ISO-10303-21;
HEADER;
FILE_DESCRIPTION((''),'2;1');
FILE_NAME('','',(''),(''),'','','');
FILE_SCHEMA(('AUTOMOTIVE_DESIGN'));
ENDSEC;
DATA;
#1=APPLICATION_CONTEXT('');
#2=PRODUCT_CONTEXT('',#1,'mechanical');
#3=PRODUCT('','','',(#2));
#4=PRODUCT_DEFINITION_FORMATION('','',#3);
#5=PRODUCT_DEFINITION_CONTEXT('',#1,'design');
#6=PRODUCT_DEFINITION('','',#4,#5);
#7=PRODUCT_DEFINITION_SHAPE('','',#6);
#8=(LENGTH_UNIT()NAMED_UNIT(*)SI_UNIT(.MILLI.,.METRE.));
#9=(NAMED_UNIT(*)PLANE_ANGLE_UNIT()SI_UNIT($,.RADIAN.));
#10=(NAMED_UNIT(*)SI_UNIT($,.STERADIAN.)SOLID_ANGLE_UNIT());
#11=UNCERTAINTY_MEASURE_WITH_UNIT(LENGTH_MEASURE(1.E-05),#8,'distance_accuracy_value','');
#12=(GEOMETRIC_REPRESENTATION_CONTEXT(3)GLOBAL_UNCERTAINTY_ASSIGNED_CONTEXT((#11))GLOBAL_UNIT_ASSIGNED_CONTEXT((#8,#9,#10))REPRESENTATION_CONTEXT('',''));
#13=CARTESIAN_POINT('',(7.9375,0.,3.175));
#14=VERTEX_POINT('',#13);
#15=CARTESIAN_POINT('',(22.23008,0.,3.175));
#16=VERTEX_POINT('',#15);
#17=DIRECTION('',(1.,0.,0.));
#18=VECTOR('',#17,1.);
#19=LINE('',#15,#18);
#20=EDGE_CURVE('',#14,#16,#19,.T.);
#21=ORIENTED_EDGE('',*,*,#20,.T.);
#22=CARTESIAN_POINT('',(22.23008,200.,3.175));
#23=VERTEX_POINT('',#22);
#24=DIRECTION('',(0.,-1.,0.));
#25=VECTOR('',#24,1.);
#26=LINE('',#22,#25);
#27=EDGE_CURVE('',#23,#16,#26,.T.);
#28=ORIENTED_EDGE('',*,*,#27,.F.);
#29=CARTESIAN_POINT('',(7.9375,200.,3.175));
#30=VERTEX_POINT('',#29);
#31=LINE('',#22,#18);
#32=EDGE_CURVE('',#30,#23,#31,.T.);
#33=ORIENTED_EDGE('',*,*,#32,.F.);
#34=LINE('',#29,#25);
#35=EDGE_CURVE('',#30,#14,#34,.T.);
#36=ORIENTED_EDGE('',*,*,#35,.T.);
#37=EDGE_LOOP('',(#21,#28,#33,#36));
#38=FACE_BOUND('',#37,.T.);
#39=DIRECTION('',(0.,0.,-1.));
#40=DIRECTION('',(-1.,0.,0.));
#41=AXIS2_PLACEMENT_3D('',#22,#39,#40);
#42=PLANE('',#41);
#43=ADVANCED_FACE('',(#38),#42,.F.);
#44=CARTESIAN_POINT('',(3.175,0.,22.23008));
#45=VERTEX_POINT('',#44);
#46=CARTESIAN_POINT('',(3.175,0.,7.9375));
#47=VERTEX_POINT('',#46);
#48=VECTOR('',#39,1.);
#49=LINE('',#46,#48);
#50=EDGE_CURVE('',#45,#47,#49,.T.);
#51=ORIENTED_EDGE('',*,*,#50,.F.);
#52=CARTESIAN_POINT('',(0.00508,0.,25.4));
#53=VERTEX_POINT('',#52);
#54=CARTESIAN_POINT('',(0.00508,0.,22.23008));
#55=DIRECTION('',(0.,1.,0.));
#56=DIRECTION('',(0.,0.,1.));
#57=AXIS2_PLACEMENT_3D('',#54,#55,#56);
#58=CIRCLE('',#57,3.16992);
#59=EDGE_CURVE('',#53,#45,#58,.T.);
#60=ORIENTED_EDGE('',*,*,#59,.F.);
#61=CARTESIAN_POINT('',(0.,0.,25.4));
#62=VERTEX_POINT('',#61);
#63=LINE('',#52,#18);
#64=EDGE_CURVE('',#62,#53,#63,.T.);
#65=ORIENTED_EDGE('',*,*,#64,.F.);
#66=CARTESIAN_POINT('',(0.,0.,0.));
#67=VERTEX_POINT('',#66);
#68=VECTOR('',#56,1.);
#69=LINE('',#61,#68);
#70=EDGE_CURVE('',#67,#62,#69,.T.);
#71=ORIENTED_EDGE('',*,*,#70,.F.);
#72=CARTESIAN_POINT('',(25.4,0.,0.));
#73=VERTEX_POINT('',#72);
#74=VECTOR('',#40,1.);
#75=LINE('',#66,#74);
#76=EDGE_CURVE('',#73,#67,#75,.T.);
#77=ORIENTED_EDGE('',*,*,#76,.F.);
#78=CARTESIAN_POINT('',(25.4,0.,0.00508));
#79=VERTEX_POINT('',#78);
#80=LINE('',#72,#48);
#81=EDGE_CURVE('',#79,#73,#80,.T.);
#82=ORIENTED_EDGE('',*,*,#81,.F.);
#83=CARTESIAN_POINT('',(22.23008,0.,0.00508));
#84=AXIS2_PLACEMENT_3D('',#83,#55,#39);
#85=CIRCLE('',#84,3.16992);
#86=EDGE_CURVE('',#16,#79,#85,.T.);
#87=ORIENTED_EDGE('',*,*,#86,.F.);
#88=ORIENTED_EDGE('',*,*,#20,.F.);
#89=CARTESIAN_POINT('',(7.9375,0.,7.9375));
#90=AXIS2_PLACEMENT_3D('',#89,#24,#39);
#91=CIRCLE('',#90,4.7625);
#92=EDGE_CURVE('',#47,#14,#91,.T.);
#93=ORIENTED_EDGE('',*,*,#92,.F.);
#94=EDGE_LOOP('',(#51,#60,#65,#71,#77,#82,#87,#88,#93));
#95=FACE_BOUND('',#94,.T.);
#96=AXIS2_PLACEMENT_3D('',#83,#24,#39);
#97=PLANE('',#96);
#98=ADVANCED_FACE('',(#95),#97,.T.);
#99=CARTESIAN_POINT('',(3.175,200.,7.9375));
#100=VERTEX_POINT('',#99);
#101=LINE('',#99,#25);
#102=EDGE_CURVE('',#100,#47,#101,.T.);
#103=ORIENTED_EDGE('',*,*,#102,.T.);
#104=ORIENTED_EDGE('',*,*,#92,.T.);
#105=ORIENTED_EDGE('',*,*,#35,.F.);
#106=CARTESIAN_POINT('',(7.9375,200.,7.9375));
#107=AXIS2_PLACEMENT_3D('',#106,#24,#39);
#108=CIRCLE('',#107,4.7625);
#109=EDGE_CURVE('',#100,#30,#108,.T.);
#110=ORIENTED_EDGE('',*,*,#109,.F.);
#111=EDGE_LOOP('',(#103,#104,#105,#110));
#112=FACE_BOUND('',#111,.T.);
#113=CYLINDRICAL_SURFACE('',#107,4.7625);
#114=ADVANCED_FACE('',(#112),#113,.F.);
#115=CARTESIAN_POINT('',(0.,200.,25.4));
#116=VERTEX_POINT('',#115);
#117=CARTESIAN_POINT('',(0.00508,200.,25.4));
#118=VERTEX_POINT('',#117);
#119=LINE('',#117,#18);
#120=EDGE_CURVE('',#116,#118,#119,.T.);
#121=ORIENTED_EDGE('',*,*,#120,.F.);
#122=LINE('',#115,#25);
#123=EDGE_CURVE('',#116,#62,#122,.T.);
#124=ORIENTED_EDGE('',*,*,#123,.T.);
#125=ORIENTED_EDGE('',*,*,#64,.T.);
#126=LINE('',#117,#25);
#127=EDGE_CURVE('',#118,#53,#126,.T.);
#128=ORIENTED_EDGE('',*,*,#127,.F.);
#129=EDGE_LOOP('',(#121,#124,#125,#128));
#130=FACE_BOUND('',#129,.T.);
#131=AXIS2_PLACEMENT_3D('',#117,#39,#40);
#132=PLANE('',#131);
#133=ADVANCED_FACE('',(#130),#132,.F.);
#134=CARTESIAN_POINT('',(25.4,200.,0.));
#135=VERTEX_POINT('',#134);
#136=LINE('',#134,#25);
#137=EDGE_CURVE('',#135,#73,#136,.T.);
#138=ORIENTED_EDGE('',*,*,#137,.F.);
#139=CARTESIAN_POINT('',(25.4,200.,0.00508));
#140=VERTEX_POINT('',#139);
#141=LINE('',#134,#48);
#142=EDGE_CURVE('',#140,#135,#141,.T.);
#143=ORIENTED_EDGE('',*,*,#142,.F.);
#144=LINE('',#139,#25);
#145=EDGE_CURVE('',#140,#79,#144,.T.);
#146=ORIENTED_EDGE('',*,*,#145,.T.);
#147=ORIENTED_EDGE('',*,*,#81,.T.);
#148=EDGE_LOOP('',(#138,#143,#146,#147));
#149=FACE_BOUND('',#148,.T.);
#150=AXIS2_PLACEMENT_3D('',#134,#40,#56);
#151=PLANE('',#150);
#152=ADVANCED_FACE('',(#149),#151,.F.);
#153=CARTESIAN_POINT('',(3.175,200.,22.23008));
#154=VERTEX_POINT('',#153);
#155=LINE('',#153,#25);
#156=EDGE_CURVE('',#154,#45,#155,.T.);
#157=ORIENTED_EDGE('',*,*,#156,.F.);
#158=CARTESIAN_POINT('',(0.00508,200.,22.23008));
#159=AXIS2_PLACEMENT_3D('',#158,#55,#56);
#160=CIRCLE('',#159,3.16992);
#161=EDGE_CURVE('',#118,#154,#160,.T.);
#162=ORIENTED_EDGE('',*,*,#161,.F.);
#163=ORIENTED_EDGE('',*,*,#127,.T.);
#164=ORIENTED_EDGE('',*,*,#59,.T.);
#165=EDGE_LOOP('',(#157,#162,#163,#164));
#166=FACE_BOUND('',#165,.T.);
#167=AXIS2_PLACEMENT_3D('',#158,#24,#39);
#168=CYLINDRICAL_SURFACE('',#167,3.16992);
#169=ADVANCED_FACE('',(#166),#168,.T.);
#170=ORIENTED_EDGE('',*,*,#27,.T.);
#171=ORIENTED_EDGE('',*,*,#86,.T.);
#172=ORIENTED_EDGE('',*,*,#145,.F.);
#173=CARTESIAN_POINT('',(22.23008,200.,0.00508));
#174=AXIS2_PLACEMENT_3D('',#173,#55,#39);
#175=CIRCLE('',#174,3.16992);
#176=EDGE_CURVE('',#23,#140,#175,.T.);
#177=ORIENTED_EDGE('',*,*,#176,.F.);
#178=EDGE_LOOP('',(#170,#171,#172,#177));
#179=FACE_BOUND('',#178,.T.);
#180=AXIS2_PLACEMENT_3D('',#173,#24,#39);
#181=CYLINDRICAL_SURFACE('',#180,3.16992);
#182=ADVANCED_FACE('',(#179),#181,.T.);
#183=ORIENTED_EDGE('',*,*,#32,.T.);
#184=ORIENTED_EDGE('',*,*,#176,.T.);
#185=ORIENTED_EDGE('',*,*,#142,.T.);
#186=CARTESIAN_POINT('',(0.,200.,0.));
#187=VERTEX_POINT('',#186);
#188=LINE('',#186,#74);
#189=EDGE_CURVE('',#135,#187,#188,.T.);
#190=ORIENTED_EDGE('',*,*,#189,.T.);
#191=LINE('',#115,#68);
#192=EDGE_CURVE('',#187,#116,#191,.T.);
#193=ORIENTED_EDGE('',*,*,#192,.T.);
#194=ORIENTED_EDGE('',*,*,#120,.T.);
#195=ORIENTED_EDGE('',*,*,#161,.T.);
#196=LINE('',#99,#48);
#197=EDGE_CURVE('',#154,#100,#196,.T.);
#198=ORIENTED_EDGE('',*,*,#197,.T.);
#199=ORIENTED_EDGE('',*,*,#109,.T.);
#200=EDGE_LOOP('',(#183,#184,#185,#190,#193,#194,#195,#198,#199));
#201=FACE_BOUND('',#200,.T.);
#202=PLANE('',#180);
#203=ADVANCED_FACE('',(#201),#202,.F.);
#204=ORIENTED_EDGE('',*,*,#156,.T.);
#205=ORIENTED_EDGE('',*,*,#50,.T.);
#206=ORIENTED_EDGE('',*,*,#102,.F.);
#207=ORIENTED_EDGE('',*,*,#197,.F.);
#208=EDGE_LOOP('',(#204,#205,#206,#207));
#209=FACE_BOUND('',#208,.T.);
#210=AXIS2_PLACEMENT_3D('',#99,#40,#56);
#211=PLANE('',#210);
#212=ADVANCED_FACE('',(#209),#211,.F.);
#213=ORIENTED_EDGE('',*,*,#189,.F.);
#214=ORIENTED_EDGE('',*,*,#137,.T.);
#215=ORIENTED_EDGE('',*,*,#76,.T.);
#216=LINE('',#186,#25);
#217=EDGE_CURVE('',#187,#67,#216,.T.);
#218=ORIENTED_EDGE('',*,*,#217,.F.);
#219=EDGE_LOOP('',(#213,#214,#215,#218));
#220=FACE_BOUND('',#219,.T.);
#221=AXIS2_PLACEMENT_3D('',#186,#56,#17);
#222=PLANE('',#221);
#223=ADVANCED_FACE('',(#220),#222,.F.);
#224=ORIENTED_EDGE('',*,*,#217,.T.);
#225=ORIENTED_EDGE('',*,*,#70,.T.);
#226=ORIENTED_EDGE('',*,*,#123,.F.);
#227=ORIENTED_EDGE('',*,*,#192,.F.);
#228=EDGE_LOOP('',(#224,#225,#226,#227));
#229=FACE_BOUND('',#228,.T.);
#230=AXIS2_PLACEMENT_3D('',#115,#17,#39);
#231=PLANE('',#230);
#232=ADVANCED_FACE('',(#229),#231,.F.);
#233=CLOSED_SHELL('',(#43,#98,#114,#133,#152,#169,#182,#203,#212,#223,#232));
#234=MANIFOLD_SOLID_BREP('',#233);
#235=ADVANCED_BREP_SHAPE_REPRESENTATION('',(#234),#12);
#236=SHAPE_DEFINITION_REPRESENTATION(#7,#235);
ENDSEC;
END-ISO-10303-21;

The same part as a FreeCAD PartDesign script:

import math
import FreeCAD as App
import Part
import Sketcher
Q = App.Units.Quantity

doc = App.newDocument("Part")
body = doc.addObject("PartDesign::Body", "Body")

# Sketch on XZ plane
sketch1 = body.newObject("Sketcher::SketchObject", "Sketch")
sketch1.AttachmentSupport = (doc.getObject("XZ_Plane"), [""])
sketch1.MapMode = "FlatFace"
sketch1.addGeometry(Part.LineSegment(App.Vector(25.4, 0, 0), App.Vector(0, 0, 0)), False)
sketch1.addGeometry(Part.LineSegment(App.Vector(0, 0, 0), App.Vector(0, 25.4, 0)), False)
sketch1.addGeometry(Part.LineSegment(App.Vector(0, 25.4, 0), App.Vector(0.00508, 25.4, 0)), False)
sketch1.addGeometry(Part.ArcOfCircle(Part.Circle(App.Vector(0.00508, 22.23008, 0), App.Vector(0, 0, 1), 3.16992), math.radians(0), math.radians(90)), False)
sketch1.addGeometry(Part.LineSegment(App.Vector(3.175, 22.23008, 0), App.Vector(3.175, 7.9375, 0)), False)
sketch1.addGeometry(Part.ArcOfCircle(Part.Circle(App.Vector(7.9375, 7.9375, 0), App.Vector(0, 0, 1), 4.7625), math.radians(-180), math.radians(-90)), False)
sketch1.addGeometry(Part.LineSegment(App.Vector(7.9375, 3.175, 0), App.Vector(22.23008, 3.175, 0)), False)
sketch1.addGeometry(Part.ArcOfCircle(Part.Circle(App.Vector(22.23008, 0.00508, 0), App.Vector(0, 0, 1), 3.16992), math.radians(0), math.radians(90)), False)
sketch1.addGeometry(Part.LineSegment(App.Vector(25.4, 0.00508, 0), App.Vector(25.4, 0, 0)), False)
sketch1.addConstraint(Sketcher.Constraint("Coincident", 0, 2, 1, 1))
sketch1.addConstraint(Sketcher.Constraint("Coincident", 1, 2, 2, 1))
sketch1.addConstraint(Sketcher.Constraint("Tangent", 2, 2, 3, 2))
sketch1.addConstraint(Sketcher.Constraint("Tangent", 3, 1, 4, 1))
sketch1.addConstraint(Sketcher.Constraint("Tangent", 4, 2, 5, 1))
sketch1.addConstraint(Sketcher.Constraint("Tangent", 5, 2, 6, 1))
sketch1.addConstraint(Sketcher.Constraint("Tangent", 6, 2, 7, 2))
sketch1.addConstraint(Sketcher.Constraint("Tangent", 7, 1, 8, 1))
sketch1.addConstraint(Sketcher.Constraint("Coincident", 8, 2, 0, 1))
sketch1.addConstraint(Sketcher.Constraint("Horizontal", 0))
sketch1.addConstraint(Sketcher.Constraint("Vertical", 1))
sketch1.addConstraint(Sketcher.Constraint("Vertical", 4))
sketch1.addConstraint(Sketcher.Constraint("Horizontal", 6))
sketch1.addConstraint(Sketcher.Constraint("Coincident", 0, 2, -1, 1))
sketch1.addConstraint(Sketcher.Constraint("Equal", 3, 7))
sketch1.addConstraint(Sketcher.Constraint("Vertical", 3, 3, 2, 2))
sketch1.addConstraint(Sketcher.Constraint("Equal", 0, 1))
sketch1.addConstraint(Sketcher.Constraint("Equal", 6, 4))
sketch1.addConstraint(Sketcher.Constraint("Equal", 2, 8))
sketch1.addConstraint(Sketcher.Constraint("DistanceX", 0, 2, 0, 1, Q("1 in")))
sketch1.addConstraint(Sketcher.Constraint("Radius", 5, Q("0.1875 in")))
sketch1.addConstraint(Sketcher.Constraint("Radius", 3, Q("0.1248 in")))
sketch1.addConstraint(Sketcher.Constraint("DistanceX", 2, 1, 2, 2, Q("0.0002 in")))
pad1 = body.newObject("PartDesign::Pad", "Pad")
pad1.Profile = sketch1
pad1.Length = 200
pad1.Reversed = True

doc.recompute()
